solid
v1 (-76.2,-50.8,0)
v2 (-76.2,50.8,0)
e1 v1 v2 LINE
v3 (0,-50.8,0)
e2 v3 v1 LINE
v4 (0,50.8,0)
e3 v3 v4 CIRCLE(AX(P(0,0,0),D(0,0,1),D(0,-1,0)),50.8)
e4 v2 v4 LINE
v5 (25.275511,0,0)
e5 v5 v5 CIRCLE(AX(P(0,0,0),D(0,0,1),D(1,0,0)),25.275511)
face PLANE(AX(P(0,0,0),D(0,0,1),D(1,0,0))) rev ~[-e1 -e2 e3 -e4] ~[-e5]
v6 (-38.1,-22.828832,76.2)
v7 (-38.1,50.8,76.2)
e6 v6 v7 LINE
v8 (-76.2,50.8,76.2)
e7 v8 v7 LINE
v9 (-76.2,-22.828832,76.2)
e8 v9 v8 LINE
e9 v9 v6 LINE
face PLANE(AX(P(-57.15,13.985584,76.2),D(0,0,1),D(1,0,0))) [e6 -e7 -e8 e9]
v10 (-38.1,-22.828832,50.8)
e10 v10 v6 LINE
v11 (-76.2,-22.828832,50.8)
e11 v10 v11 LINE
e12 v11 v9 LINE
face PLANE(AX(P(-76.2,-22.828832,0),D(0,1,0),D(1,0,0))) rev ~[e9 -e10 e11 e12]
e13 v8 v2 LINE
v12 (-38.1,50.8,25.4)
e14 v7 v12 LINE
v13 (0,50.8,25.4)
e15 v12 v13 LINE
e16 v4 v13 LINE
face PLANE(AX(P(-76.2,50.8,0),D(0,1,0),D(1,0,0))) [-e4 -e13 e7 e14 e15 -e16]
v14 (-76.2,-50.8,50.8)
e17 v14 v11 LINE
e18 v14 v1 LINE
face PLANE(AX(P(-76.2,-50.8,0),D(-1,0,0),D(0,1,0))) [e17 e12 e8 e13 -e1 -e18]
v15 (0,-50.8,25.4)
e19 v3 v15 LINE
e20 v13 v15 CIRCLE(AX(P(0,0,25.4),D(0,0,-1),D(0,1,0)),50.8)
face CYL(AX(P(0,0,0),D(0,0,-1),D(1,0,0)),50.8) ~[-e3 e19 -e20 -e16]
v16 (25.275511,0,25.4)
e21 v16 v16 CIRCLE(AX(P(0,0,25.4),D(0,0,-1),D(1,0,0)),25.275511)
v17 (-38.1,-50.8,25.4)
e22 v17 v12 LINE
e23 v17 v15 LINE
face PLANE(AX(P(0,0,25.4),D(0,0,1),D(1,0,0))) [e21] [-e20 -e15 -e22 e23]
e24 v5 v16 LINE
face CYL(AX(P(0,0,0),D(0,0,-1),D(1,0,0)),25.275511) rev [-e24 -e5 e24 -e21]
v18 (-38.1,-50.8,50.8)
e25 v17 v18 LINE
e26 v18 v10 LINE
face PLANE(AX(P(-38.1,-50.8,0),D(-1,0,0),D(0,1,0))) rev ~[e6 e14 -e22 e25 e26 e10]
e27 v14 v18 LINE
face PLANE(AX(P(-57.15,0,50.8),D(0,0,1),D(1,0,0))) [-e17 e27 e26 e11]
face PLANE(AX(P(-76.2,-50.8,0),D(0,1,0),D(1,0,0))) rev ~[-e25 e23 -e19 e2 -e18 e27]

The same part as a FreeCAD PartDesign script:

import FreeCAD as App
import Part
import Sketcher
from FreeCAD import Vector
Q = App.Units.Quantity

doc = App.newDocument("Part")
body = doc.addObject("PartDesign::Body", "Body")

# Sketch on XY plane
sketch1 = body.newObject("Sketcher::SketchObject", "Sketch")
sketch1.AttachmentSupport = (doc.getObject("XY_Plane"), [""])
sketch1.MapMode = "FlatFace"
sketch1.addGeometry([
    Part.LineSegment(Vector(-76, 51, 0), Vector(-76, -51, 0)),
    Part.LineSegment(Vector(-76, -51, 0), Vector(0, -51, 0)),
    Part.LineSegment(Vector(0, -51, 0), Vector(0, 51, 0)),
    Part.LineSegment(Vector(0, 51, 0), Vector(-76, 51, 0)),
], False)
sketch1.addConstraint([
    Sketcher.Constraint("Coincident", 0, 2, 1, 1),
    Sketcher.Constraint("Coincident", 1, 2, 2, 1),
    Sketcher.Constraint("Coincident", 2, 2, 3, 1),
    Sketcher.Constraint("Coincident", 3, 2, 0, 1),
    Sketcher.Constraint("Vertical", 0),
    Sketcher.Constraint("Horizontal", 1),
    Sketcher.Constraint("Vertical", 2),
    Sketcher.Constraint("Horizontal", 3),
    Sketcher.Constraint("Symmetric", 1, 2, 2, 2, -1, 1),
    Sketcher.Constraint("DistanceX", 1, 1, 1, 2, Q("3 in")),
    Sketcher.Constraint("DistanceY", 0, 2, 0, 1, Q("4 in")),
])
pad1 = body.newObject("PartDesign::Pad", "Pad")
pad1.Profile = sketch1
pad1.Length = Q("1 in")

# Sketch on XY plane
sketch2 = body.newObject("Sketcher::SketchObject", "Sketch001")
sketch2.AttachmentSupport = (doc.getObject("XY_Plane"), [""])
sketch2.MapMode = "FlatFace"
sketch2.addGeometry(Part.Circle(Vector(0, 0, 0), Vector(0, 0, 1), 51), False)
sketch2.addConstraint([
    Sketcher.Constraint("Coincident", 0, 3, -1, 1),
    Sketcher.Constraint("Diameter", 0, Q("4 in")),
])
pad2 = body.newObject("PartDesign::Pad", "Pad001")
pad2.Profile = sketch2
pad2.Length = Q("1 in")

# Sketch on XY plane
sketch3 = body.newObject("Sketcher::SketchObject", "Sketch002")
sketch3.AttachmentSupport = (doc.getObject("XY_Plane"), [""])
sketch3.MapMode = "FlatFace"
sketch3.addGeometry(Part.Circle(Vector(0, 0, 0), Vector(0, 0, 1), 25), False)
sketch3.addConstraint([
    Sketcher.Constraint("Coincident", 0, 3, -1, 1),
    Sketcher.Constraint("Diameter", 0, Q("50.551022 mm")),
])
pocket1 = body.newObject("PartDesign::Pocket", "Pocket")
pocket1.Profile = sketch3
pocket1.Type = "ThroughAll"
pocket1.Reversed = True

# Sketch on XY plane
sketch4 = body.newObject("Sketcher::SketchObject", "Sketch003")
sketch4.AttachmentSupport = (doc.getObject("XY_Plane"), [""])
sketch4.MapMode = "FlatFace"
sketch4.addGeometry([
    Part.LineSegment(Vector(-76, 51, 0), Vector(-76, -51, 0)),
    Part.LineSegment(Vector(-76, -51, 0), Vector(-38, -51, 0)),
    Part.LineSegment(Vector(-38, -51, 0), Vector(-38, 51, 0)),
    Part.LineSegment(Vector(-38, 51, 0), Vector(-76, 51, 0)),
], False)
sketch4.addConstraint([
    Sketcher.Constraint("Coincident", 0, 2, 1, 1),
    Sketcher.Constraint("Coincident", 1, 2, 2, 1),
    Sketcher.Constraint("Coincident", 2, 2, 3, 1),
    Sketcher.Constraint("Coincident", 3, 2, 0, 1),
    Sketcher.Constraint("Vertical", 0),
    Sketcher.Constraint("Horizontal", 1),
    Sketcher.Constraint("Vertical", 2),
    Sketcher.Constraint("Horizontal", 3),
    Sketcher.Constraint("DistanceY", 0, 2, 0, 1, Q("4 in")),
    Sketcher.Constraint("DistanceX", 1, 1, 1, 2, Q("1.5 in")),
    Sketcher.Constraint("DistanceX", 0, 2, -1, 1, Q("3 in")),
    Sketcher.Constraint("DistanceY", 0, 2, -1, 1, Q("2 in")),
])
pad3 = body.newObject("PartDesign::Pad", "Pad002")
pad3.Profile = sketch4
pad3.Length = Q("2 in")

# Sketch on XY plane
sketch5 = body.newObject("Sketcher::SketchObject", "Sketch004")
sketch5.AttachmentSupport = (doc.getObject("XY_Plane"), [""])
sketch5.MapMode = "FlatFace"
sketch5.addGeometry([
    Part.LineSegment(Vector(-76, 51, 0), Vector(-76, -23, 0)),
    Part.LineSegment(Vector(-76, -23, 0), Vector(-38, -23, 0)),
    Part.LineSegment(Vector(-38, -23, 0), Vector(-38, 51, 0)),
    Part.LineSegment(Vector(-38, 51, 0), Vector(-76, 51, 0)),
], False)
sketch5.addConstraint([
    Sketcher.Constraint("Coincident", 0, 2, 1, 1),
    Sketcher.Constraint("Coincident", 1, 2, 2, 1),
    Sketcher.Constraint("Coincident", 2, 2, 3, 1),
    Sketcher.Constraint("Coincident", 3, 2, 0, 1),
    Sketcher.Constraint("Vertical", 0),
    Sketcher.Constraint("Horizontal", 1),
    Sketcher.Constraint("Vertical", 2),
    Sketcher.Constraint("Horizontal", 3),
    Sketcher.Constraint("DistanceX", 1, 1, 1, 2, Q("1.5 in")),
    Sketcher.Constraint("DistanceX", 0, 2, -1, 1, Q("3 in")),
    Sketcher.Constraint("DistanceY", -1, 1, 2, 2, Q("2 in")),
    Sketcher.Constraint("DistanceY", 0, 2, 0, 1, Q("73.628832 mm")),
])
pad4 = body.newObject("PartDesign::Pad", "Pad003")
pad4.Profile = sketch5
pad4.Length = Q("3 in")

doc.recompute()
